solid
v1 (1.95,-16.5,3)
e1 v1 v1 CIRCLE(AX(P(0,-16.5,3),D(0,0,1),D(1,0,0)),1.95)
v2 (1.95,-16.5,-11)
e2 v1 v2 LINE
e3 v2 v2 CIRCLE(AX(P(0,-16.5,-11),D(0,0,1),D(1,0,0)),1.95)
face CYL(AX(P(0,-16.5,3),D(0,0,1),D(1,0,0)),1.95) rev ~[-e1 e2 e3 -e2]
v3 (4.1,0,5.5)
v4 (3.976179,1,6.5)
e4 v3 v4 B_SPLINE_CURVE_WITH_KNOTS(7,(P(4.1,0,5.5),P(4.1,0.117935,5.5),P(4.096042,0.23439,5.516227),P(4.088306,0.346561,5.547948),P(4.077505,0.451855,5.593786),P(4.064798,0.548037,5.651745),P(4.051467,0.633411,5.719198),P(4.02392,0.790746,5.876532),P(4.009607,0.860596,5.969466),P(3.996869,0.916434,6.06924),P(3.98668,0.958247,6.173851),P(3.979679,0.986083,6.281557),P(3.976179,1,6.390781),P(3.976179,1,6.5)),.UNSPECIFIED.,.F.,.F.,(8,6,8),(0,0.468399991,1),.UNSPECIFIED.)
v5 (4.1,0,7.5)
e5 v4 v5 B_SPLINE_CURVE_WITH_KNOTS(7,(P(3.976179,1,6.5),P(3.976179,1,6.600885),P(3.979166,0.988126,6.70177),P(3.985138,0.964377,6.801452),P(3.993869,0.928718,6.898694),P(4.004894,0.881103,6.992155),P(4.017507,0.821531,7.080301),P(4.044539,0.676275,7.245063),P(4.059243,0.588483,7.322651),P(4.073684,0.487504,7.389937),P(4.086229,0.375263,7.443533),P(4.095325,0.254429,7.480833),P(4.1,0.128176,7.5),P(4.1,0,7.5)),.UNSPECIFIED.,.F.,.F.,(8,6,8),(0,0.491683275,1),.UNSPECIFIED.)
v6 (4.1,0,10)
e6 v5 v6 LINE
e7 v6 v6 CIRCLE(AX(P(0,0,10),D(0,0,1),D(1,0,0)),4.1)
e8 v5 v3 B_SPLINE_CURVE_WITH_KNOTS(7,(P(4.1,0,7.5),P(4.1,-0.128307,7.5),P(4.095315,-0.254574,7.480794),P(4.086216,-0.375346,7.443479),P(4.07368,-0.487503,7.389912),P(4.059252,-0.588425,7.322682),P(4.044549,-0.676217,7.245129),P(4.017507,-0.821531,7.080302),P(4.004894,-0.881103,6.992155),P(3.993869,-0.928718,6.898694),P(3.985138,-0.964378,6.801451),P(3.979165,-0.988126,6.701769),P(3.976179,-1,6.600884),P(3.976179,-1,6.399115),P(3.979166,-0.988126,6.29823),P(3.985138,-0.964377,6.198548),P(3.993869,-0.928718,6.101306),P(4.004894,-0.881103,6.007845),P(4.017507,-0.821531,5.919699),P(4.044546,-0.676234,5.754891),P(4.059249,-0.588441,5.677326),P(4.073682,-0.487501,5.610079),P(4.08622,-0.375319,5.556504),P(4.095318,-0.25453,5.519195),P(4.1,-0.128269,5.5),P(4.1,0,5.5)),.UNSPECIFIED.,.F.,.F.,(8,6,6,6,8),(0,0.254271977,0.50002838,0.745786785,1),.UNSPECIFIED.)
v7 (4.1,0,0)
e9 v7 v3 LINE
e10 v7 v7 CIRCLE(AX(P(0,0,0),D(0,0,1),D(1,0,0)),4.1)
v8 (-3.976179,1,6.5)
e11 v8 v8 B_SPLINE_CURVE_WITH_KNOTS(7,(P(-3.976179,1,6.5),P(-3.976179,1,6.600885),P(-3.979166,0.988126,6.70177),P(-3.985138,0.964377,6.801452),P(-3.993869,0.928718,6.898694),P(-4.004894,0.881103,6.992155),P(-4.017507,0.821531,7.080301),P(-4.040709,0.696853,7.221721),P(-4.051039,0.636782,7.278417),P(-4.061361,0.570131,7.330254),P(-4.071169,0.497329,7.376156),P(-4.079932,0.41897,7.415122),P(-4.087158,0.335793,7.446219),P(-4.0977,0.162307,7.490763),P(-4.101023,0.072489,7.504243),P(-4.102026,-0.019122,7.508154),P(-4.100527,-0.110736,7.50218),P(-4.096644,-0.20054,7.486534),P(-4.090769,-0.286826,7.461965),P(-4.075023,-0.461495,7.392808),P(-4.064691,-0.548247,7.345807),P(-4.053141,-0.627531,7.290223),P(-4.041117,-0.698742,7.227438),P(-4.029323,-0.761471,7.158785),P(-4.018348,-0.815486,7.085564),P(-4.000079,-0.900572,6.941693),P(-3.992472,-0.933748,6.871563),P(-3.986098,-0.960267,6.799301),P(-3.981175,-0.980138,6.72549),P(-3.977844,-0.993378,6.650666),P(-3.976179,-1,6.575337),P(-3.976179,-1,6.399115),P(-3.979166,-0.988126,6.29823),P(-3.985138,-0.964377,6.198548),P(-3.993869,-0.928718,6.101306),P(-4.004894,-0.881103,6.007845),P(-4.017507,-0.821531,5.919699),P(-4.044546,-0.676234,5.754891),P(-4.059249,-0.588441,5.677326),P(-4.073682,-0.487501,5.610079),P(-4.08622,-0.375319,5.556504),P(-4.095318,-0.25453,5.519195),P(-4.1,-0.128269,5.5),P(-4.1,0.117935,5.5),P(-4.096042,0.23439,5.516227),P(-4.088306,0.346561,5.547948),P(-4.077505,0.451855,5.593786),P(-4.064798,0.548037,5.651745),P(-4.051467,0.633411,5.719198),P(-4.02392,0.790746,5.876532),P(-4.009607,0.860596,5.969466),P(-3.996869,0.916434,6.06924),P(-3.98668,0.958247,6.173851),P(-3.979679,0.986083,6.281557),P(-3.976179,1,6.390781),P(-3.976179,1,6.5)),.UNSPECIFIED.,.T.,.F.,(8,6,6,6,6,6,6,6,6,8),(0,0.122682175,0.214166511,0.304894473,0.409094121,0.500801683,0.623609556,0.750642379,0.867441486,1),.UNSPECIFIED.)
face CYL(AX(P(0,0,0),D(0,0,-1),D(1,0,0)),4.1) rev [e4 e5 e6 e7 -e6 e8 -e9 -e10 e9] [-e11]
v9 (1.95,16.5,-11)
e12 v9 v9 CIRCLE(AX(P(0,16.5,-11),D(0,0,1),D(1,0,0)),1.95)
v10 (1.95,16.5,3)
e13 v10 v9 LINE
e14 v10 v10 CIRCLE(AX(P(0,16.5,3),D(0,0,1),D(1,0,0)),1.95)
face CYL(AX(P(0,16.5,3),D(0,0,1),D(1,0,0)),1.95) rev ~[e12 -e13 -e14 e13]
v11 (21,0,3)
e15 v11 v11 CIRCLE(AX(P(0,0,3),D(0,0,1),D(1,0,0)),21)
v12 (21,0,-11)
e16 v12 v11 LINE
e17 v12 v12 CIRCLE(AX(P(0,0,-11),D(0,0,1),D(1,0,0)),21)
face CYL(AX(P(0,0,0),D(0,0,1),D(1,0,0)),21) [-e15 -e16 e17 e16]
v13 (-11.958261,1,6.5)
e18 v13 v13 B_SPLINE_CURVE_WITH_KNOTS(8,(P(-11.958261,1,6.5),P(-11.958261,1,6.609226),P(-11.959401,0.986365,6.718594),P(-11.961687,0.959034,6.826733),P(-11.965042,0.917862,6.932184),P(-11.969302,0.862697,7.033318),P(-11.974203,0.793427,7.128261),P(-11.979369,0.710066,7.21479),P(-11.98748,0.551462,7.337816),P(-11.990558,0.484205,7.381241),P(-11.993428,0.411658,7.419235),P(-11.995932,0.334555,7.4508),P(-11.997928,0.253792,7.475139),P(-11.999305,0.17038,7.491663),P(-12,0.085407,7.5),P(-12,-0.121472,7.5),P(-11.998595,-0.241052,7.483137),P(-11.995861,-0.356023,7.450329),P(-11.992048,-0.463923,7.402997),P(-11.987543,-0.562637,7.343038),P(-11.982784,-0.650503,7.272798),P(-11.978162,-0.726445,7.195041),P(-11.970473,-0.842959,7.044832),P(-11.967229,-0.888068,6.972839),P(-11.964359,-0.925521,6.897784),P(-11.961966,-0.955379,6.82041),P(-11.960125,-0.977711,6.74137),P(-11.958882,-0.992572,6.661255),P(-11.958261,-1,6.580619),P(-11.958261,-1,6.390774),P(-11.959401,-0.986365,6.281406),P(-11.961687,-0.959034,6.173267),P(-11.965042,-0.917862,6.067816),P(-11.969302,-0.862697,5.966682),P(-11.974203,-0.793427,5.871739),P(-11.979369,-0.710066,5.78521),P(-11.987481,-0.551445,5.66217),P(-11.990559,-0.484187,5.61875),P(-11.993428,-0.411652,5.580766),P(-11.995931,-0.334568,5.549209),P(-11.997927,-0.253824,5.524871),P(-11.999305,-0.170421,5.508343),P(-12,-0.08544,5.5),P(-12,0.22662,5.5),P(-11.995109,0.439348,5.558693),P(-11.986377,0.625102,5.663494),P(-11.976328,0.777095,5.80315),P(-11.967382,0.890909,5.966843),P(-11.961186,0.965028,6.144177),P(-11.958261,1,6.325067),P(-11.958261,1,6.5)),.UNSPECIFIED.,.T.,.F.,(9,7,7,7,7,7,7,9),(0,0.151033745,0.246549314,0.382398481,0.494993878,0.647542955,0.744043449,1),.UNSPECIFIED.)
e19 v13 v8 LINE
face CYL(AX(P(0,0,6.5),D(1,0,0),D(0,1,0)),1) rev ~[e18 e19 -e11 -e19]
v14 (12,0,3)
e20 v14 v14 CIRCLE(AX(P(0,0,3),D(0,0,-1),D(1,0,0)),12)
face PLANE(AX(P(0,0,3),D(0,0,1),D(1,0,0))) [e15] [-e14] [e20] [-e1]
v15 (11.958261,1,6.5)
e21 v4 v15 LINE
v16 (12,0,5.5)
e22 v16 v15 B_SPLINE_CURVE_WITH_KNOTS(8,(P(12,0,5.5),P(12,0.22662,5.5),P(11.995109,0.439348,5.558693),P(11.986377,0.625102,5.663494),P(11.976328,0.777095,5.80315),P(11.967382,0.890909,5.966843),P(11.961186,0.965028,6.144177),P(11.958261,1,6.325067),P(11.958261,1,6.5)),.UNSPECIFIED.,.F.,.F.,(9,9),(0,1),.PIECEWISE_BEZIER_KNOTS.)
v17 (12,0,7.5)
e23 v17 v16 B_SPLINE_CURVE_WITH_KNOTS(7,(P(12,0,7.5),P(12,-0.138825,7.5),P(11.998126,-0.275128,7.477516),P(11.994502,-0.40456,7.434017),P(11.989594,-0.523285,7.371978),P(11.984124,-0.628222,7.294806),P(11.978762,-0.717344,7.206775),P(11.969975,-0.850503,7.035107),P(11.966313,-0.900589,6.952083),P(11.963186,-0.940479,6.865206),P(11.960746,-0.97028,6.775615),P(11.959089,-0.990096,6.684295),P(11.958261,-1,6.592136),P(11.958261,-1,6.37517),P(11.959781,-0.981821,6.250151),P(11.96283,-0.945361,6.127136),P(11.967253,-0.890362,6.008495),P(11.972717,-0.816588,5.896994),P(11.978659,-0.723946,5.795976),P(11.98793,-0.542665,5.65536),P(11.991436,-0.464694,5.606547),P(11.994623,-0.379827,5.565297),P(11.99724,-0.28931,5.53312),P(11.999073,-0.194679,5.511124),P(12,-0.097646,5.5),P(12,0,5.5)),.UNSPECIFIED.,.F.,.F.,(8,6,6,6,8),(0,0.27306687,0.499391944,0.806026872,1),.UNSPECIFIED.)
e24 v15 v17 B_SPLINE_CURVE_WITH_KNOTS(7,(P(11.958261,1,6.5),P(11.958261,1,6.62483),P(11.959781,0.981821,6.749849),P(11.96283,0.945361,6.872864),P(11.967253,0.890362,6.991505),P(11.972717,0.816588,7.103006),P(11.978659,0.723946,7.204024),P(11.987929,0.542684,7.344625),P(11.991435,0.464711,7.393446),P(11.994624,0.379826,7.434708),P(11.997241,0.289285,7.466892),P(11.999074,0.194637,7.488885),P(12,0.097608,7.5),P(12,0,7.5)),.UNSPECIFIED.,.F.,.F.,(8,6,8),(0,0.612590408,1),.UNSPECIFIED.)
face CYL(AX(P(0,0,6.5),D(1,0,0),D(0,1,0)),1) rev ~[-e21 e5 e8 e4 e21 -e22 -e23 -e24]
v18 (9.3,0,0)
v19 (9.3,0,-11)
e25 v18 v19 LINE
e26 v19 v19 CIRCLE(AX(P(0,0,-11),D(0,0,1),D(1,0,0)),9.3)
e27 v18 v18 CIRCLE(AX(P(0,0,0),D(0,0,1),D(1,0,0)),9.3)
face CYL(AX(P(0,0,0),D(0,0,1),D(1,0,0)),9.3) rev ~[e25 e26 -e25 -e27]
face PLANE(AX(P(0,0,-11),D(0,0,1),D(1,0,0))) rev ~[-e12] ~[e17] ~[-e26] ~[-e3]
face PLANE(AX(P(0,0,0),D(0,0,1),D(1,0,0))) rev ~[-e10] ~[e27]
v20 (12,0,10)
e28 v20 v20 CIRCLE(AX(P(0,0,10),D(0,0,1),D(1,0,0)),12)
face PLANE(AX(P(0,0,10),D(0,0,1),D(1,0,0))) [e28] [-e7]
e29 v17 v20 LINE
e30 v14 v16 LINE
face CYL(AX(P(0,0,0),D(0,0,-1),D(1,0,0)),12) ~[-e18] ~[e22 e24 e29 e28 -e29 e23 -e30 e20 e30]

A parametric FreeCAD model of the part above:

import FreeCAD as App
import Part
import Sketcher

V = App.Vector

doc = App.newDocument("Part")
body = doc.addObject("PartDesign::Body", "Body")

sketch1 = doc.addObject("Sketcher::SketchObject", "Sketch")
body.addObject(sketch1)
sketch1.AttachmentSupport = (doc.XY_Plane, [""])
sketch1.MapMode = "FlatFace"
sketch1.addGeometry([
    Part.Circle(V(0, 0, 0), V(0, 0, 1), 21),
    Part.Circle(V(0, 0, 0), V(0, 0, 1), 4.1),
], False)
sketch1.addConstraint([
    Sketcher.Constraint("Coincident", 0, 3, -1, 1),
    Sketcher.Constraint("Coincident", 1, 3, -1, 1),
    Sketcher.Constraint("Diameter", 0, 42.0),
    Sketcher.Constraint("Diameter", 1, 8.2),
])
pad1 = doc.addObject("PartDesign::Pad", "Pad")
body.addObject(pad1)
pad1.Profile = sketch1
pad1.Length = 3

sketch2 = doc.addObject("Sketcher::SketchObject", "Sketch001")
body.addObject(sketch2)
sketch2.AttachmentSupport = (doc.XY_Plane, [""])
sketch2.MapMode = "FlatFace"
sketch2.addGeometry([
    Part.Circle(V(0, 0, 0), V(0, 0, 1), 12),
    Part.Circle(V(0, 0, 0), V(0, 0, 1), 4.1),
], False)
sketch2.addConstraint([
    Sketcher.Constraint("Coincident", 0, 3, -1, 1),
    Sketcher.Constraint("Coincident", 1, 3, -1, 1),
    Sketcher.Constraint("Diameter", 0, 24.0),
    Sketcher.Constraint("Diameter", 1, 8.2),
])
pad2 = doc.addObject("PartDesign::Pad", "Pad001")
body.addObject(pad2)
pad2.Profile = sketch2
pad2.Length = 10

sketch3 = doc.addObject("Sketcher::SketchObject", "Sketch002")
body.addObject(sketch3)
sketch3.AttachmentSupport = (doc.XY_Plane, [""])
sketch3.MapMode = "FlatFace"
sketch3.addGeometry([
    Part.Circle(V(0, 0, 0), V(0, 0, 1), 21),
    Part.Circle(V(0, 0, 0), V(0, 0, 1), 9),
], False)
sketch3.addConstraint([
    Sketcher.Constraint("Coincident", 0, 3, -1, 1),
    Sketcher.Constraint("Coincident", 1, 3, -1, 1),
    Sketcher.Constraint("Diameter", 0, 42.0),
    Sketcher.Constraint("Diameter", 1, 18.6),
])
pad3 = doc.addObject("PartDesign::Pad", "Pad002")
body.addObject(pad3)
pad3.Profile = sketch3
pad3.Length = 11
pad3.Reversed = True

sketch4 = doc.addObject("Sketcher::SketchObject", "Sketch003")
body.addObject(sketch4)
sketch4.AttachmentSupport = (doc.XY_Plane, [""])
sketch4.MapMode = "FlatFace"
sketch4.AttachmentOffset = App.Placement(V(0, 0, 3), App.Rotation())
sketch4.addGeometry([
    Part.Circle(V(0, 16.5, 0), V(0, 0, 1), 1.9),
    Part.Circle(V(0, -16.5, 0), V(0, 0, 1), 1.9),
], False)
sketch4.addConstraint([
    Sketcher.Constraint("Equal", 0, 1),
    Sketcher.Constraint("Symmetric", 0, 3, 1, 3, -1, 1),
    Sketcher.Constraint("PointOnObject", 0, 3, -2),
    Sketcher.Constraint("Diameter", 0, 3.9),
    Sketcher.Constraint("DistanceY", 1, 3, 0, 3, 33.0),
])
pocket1 = doc.addObject("PartDesign::Pocket", "Pocket")
body.addObject(pocket1)
pocket1.Profile = sketch4
pocket1.Type = "ThroughAll"

sketch5 = doc.addObject("Sketcher::SketchObject", "Sketch004")
body.addObject(sketch5)
sketch5.AttachmentSupport = (doc.YZ_Plane, [""])
sketch5.MapMode = "FlatFace"
sketch5.addGeometry(Part.Circle(V(0, 6.5, 0), V(0, 0, 1), 1), False)
sketch5.addConstraint([
    Sketcher.Constraint("PointOnObject", 0, 3, -2),
    Sketcher.Constraint("Diameter", 0, 2.0),
    Sketcher.Constraint("DistanceY", -1, 1, 0, 3, 6.5),
])
pocket2 = doc.addObject("PartDesign::Pocket", "Pocket001")
body.addObject(pocket2)
pocket2.Profile = sketch5
pocket2.Length = 25
pocket2.Midplane = True

doc.recompute()
